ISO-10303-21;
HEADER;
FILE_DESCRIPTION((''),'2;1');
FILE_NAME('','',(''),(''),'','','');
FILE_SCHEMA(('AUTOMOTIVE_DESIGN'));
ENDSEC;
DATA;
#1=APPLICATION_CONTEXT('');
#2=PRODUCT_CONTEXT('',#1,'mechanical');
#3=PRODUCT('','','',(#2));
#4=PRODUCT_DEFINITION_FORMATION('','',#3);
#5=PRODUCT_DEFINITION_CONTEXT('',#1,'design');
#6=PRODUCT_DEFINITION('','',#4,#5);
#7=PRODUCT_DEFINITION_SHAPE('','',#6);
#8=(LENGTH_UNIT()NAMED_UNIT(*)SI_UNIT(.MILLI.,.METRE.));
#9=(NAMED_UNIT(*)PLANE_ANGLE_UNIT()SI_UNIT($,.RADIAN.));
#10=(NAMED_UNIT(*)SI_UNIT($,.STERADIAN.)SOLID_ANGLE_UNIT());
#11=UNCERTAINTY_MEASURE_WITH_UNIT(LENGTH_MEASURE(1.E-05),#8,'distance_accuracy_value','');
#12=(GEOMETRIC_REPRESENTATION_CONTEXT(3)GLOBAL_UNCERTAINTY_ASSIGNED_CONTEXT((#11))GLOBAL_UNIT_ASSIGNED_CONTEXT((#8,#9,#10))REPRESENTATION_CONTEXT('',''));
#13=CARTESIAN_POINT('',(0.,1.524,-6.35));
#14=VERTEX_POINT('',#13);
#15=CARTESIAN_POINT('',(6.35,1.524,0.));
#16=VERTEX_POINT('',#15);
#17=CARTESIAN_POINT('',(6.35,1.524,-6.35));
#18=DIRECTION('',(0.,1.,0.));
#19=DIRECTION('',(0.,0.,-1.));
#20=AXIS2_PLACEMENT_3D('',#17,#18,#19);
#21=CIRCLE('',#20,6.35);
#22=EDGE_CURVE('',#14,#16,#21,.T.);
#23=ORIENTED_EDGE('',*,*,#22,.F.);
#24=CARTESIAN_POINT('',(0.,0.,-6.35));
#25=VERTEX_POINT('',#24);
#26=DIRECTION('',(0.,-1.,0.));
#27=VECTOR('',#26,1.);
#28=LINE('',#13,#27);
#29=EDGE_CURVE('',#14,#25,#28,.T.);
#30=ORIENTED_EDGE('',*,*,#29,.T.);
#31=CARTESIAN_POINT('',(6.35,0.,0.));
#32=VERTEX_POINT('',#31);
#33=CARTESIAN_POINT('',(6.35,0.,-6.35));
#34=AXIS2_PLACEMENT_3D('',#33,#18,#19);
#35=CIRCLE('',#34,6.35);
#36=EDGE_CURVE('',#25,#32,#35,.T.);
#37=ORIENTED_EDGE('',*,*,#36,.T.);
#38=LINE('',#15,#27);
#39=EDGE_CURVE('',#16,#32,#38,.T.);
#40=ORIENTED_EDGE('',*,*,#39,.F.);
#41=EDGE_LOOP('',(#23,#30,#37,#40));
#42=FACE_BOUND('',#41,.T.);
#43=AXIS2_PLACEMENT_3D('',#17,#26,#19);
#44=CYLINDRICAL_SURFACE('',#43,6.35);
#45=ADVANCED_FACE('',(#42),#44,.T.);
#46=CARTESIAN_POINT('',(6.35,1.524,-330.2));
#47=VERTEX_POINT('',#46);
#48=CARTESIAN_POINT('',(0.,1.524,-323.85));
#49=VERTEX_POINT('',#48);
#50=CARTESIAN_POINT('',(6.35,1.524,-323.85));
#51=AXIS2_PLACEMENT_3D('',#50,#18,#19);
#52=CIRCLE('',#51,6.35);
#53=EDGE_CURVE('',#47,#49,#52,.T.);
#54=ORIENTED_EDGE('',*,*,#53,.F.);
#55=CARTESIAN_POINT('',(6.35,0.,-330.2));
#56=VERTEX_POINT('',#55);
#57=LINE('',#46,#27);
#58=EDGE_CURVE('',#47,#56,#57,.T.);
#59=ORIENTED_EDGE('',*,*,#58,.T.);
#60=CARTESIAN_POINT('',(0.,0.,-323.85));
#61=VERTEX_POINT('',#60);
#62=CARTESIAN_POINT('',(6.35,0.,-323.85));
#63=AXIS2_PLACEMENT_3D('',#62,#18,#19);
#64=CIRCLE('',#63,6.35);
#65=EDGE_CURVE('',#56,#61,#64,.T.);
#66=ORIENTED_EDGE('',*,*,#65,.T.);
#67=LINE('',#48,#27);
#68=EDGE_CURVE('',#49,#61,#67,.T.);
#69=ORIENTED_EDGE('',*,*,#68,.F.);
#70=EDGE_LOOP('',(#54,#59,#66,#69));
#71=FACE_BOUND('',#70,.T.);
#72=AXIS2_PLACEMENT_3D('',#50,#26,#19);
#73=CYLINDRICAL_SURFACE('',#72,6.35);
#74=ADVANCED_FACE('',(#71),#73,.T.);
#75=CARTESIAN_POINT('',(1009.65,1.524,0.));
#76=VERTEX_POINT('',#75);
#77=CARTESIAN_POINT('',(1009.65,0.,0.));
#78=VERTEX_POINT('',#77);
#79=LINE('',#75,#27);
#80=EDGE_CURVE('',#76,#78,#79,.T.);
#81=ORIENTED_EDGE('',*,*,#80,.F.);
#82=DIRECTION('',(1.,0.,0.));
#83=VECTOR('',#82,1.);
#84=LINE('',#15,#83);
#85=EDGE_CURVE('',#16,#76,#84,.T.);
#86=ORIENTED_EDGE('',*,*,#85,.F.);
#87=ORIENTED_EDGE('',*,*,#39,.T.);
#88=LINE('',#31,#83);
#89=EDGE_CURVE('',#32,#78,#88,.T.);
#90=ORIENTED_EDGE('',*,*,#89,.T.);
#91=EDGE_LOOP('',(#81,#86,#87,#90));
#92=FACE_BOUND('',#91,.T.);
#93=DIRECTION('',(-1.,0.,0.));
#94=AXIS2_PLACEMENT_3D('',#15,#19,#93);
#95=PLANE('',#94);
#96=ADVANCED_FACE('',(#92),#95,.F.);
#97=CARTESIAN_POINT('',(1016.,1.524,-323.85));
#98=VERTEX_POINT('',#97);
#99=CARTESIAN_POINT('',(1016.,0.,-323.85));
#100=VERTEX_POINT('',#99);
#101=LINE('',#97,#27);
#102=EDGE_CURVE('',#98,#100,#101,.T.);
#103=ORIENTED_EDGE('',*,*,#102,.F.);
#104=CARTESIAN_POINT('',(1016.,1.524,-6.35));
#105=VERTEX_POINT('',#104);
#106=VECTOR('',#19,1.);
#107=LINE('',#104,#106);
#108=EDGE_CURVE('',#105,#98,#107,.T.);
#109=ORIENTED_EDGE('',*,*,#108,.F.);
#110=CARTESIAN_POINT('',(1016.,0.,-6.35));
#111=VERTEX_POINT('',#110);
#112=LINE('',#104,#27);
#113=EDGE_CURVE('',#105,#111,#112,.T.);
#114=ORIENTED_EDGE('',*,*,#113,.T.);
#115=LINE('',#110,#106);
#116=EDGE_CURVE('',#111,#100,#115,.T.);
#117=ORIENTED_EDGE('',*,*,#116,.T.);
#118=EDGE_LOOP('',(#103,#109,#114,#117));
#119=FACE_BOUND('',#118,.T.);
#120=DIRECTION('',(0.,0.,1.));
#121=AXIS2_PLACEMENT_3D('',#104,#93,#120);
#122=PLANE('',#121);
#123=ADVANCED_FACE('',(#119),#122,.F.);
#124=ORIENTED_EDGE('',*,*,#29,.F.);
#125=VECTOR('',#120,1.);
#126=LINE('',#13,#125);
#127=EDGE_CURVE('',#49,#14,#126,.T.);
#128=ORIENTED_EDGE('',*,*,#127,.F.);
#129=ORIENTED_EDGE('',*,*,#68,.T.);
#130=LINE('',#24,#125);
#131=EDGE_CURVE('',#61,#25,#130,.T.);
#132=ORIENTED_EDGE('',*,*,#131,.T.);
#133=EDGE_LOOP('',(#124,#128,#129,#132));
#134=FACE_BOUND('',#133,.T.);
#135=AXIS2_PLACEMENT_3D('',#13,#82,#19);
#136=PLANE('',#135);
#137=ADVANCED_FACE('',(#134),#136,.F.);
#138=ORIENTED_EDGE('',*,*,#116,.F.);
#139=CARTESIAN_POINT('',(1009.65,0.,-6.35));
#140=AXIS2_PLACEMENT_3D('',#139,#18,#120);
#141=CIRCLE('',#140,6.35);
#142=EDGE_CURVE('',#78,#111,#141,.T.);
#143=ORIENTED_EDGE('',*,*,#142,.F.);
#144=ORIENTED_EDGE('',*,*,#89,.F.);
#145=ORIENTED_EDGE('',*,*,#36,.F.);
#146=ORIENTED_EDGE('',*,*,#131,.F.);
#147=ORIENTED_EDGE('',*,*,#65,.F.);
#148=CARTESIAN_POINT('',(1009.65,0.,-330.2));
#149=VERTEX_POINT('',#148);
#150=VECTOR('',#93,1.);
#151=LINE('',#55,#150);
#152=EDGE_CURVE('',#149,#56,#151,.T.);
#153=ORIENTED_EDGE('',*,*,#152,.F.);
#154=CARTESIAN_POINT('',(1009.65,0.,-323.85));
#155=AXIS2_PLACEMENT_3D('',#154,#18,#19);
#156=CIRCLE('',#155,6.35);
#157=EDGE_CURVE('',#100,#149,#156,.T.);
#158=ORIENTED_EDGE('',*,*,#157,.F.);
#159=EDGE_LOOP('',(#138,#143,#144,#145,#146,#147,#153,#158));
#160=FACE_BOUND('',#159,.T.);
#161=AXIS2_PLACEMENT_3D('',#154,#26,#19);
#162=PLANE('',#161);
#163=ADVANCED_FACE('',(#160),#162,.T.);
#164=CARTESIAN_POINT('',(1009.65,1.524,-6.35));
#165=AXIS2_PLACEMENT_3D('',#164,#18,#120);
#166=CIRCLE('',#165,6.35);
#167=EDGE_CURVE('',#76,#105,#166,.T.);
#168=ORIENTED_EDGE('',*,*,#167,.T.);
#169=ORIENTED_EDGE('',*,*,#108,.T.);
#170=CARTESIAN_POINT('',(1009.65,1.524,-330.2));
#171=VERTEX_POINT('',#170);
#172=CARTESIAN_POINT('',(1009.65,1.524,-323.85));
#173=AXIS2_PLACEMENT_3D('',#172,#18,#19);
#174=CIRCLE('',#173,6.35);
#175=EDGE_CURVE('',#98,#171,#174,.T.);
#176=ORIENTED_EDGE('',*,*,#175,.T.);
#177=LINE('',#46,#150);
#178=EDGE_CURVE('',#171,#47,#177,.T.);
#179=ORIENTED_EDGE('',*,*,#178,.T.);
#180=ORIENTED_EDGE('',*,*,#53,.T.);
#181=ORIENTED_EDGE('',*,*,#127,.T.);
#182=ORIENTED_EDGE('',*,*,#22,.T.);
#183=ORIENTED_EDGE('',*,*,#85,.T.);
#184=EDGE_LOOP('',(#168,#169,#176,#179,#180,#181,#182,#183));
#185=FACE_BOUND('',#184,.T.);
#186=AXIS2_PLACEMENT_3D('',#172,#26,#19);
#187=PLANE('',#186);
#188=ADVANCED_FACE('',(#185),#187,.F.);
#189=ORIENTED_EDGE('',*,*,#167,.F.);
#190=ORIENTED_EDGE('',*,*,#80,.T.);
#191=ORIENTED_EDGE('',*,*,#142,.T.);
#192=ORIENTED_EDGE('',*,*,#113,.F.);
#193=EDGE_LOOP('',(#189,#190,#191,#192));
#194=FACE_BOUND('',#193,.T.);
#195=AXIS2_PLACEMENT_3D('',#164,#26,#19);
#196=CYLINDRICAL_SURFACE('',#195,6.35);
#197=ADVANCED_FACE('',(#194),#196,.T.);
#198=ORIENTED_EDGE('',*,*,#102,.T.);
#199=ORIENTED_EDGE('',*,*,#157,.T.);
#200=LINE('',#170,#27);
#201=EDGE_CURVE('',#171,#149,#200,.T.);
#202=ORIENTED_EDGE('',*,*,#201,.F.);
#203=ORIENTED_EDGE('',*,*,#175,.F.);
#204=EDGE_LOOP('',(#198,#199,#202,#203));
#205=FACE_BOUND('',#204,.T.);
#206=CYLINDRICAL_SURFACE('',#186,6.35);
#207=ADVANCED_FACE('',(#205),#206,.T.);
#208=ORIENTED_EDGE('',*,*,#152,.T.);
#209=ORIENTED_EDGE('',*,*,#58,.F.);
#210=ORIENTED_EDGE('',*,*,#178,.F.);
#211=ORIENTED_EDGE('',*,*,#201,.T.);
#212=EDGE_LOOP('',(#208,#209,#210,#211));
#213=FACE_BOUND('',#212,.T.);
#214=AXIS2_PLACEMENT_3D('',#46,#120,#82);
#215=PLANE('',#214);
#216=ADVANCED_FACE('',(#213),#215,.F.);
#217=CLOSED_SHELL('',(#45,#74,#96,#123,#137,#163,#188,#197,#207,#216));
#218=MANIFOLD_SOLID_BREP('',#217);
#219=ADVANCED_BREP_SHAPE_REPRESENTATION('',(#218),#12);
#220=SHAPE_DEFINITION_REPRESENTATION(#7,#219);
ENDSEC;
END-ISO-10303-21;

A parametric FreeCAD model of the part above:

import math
import FreeCAD as App
import Part
import Sketcher
Q = App.Units.Quantity

doc = App.newDocument("Part")
body = doc.addObject("PartDesign::Body", "Body")

sketch1 = doc.addObject("Sketcher::SketchObject", "Sketch")
body.addObject(sketch1)
sketch1.AttachmentSupport = (doc.XZ_Plane, [""])
sketch1.MapMode = "FlatFace"
sketch1.addGeometry([
    Part.LineSegment(App.Vector(6, 0, 0), App.Vector(1010, 0, 0)),
    Part.ArcOfCircle(Part.Circle(App.Vector(1010, -6, 0), App.Vector(0, 0, 1), 6), math.radians(0), math.radians(90)),
    Part.LineSegment(App.Vector(1016, -6, 0), App.Vector(1016, -324, 0)),
    Part.ArcOfCircle(Part.Circle(App.Vector(1010, -324, 0), App.Vector(0, 0, 1), 6), math.radians(-90), math.radians(0)),
    Part.LineSegment(App.Vector(1010, -330, 0), App.Vector(6, -330, 0)),
    Part.ArcOfCircle(Part.Circle(App.Vector(6, -324, 0), App.Vector(0, 0, 1), 6), math.radians(180), math.radians(270)),
    Part.LineSegment(App.Vector(0, -324, 0), App.Vector(0, -6, 0)),
    Part.ArcOfCircle(Part.Circle(App.Vector(6, -6, 0), App.Vector(0, 0, 1), 6), math.radians(90), math.radians(180)),
], False)
sketch1.addConstraint([
    Sketcher.Constraint("Tangent", 0, 2, 1, 2),
    Sketcher.Constraint("Tangent", 1, 1, 2, 1),
    Sketcher.Constraint("Tangent", 2, 2, 3, 2),
    Sketcher.Constraint("Tangent", 3, 1, 4, 1),
    Sketcher.Constraint("Tangent", 4, 2, 5, 2),
    Sketcher.Constraint("Tangent", 5, 1, 6, 1),
    Sketcher.Constraint("Tangent", 6, 2, 7, 2),
    Sketcher.Constraint("Tangent", 7, 1, 0, 1),
    Sketcher.Constraint("Horizontal", 0),
    Sketcher.Constraint("Vertical", 2),
    Sketcher.Constraint("Horizontal", 4),
    Sketcher.Constraint("Vertical", 6),
    Sketcher.Constraint("Equal", 1, 3),
    Sketcher.Constraint("Equal", 3, 5),
    Sketcher.Constraint("Equal", 5, 7),
    Sketcher.Constraint("PointOnObject", 0, 2, -1),
    Sketcher.Constraint("PointOnObject", 5, 1, -2),
    Sketcher.Constraint("Radius", 1, Q("0.25 in")),
    Sketcher.Constraint("DistanceX", 0, 1, 0, 2, Q("39.5 in")),
    Sketcher.Constraint("DistanceY", 2, 2, 2, 1, Q("12.5 in")),
])
pad1 = doc.addObject("PartDesign::Pad", "Pad")
body.addObject(pad1)
pad1.Profile = sketch1
pad1.Length = Q("0.06 in")
pad1.Reversed = True

doc.recompute()
